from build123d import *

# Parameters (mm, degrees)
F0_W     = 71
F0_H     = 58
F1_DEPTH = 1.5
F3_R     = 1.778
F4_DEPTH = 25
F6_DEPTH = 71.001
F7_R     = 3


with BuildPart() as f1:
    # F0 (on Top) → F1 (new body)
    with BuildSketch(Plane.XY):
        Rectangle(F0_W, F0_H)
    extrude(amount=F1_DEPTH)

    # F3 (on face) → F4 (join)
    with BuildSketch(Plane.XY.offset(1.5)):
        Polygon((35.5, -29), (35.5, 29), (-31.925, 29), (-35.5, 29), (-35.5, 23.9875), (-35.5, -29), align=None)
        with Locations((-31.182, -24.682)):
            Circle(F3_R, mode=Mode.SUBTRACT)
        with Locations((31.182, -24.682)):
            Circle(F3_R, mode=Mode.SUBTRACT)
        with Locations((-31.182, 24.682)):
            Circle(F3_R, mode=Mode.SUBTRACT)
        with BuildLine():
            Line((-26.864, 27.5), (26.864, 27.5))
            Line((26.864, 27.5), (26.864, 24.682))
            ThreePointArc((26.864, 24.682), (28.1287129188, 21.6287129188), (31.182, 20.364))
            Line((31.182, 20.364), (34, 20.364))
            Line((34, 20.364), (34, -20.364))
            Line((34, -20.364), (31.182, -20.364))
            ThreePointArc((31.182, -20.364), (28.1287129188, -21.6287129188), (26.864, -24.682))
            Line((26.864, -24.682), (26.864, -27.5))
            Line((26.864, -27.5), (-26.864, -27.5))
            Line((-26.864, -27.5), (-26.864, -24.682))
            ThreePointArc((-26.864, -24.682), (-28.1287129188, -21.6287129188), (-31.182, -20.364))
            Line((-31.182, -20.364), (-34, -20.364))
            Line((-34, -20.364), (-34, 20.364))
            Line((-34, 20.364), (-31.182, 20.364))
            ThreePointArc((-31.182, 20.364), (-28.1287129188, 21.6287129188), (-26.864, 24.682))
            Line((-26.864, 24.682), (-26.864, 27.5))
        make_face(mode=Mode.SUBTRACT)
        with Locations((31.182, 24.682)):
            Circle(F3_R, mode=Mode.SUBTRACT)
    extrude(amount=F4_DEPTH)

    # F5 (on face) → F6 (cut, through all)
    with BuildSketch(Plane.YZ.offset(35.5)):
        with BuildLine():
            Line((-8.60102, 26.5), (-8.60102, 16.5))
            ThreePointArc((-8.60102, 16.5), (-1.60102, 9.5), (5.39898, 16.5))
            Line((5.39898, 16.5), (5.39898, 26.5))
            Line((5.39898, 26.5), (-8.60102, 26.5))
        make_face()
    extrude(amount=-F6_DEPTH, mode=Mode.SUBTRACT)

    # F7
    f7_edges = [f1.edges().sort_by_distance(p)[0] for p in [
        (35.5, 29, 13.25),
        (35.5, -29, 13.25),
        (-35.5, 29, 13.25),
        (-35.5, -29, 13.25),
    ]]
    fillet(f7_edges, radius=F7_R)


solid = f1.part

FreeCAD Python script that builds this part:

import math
import FreeCAD as App
import Part
import Sketcher
from FreeCAD import Vector
Q = App.Units.Quantity


def edges_at(feature, points):
    """Names of the edges that pass closest to the given points."""
    edges = feature.Shape.Edges
    near = lambda p: min(range(len(edges)), key=lambda i: edges[i].distToShape(Part.Vertex(*p))[0])
    return sorted({f"Edge{near(p) + 1}" for p in points})


def add_polygon(sketch, points):
    """Adds a closed chain of lines whose ends are joined by coincident constraints."""
    first, n = sketch.GeometryCount, len(points)
    for a, b in zip(points, points[1:] + points[:1]):
        sketch.addGeometry(Part.LineSegment(App.Vector(*a, 0), App.Vector(*b, 0)), False)
    for i in range(n):
        sketch.addConstraint(Sketcher.Constraint("Coincident", first + i, 2, first + (i + 1) % n, 1))

doc = App.newDocument("Part")
body = doc.addObject("PartDesign::Body", "Body")

# Sketch on XY plane
sketch1 = body.newObject("Sketcher::SketchObject", "Sketch")
sketch1.AttachmentSupport = (doc.getObject("XY_Plane"), [""])
sketch1.MapMode = "FlatFace"
add_polygon(sketch1, [(-36, 29), (-36, -29), (36, -29), (36, 29)])  # lines 0-3
sketch1.addConstraint([
    Sketcher.Constraint("Vertical", 0),
    Sketcher.Constraint("Horizontal", 1),
    Sketcher.Constraint("Vertical", 2),
    Sketcher.Constraint("Horizontal", 3),
    Sketcher.Constraint("Symmetric", 0, 2, 2, 2, -1, 1),
    Sketcher.Constraint("DistanceX", 1, 1, 1, 2, Q("71 mm")),
    Sketcher.Constraint("DistanceY", 0, 2, 0, 1, Q("58 mm")),
])
pad1 = body.newObject("PartDesign::Pad", "Pad")
pad1.Profile = sketch1
pad1.Length = 1.5

# Sketch on XY plane
sketch2 = body.newObject("Sketcher::SketchObject", "Sketch001")
sketch2.AttachmentSupport = (doc.getObject("XY_Plane"), [""])
sketch2.MapMode = "FlatFace"
sketch2.AttachmentOffset = App.Placement(Vector(0, 0, 1.5), App.Rotation())
add_polygon(sketch2, [(35.5, -29), (35.5, 29), (-35.5, 29), (-35.5, -29)])  # lines 0-3
sketch2.addGeometry(Part.Circle(Vector(-31.2, -24.7, 0), Vector(0, 0, 1), 1.8), False)  # 4
sketch2.addGeometry(Part.Circle(Vector(31.2, -24.7, 0), Vector(0, 0, 1), 1.8), False)  # 5
sketch2.addGeometry(Part.Circle(Vector(-31.2, 24.7, 0), Vector(0, 0, 1), 1.8), False)  # 6
sketch2.addGeometry(Part.LineSegment(Vector(-26.9, 24.7, 0), Vector(-26.9, 27.5, 0)), False)  # 7
sketch2.addGeometry(Part.LineSegment(Vector(-26.9, 27.5, 0), Vector(26.9, 27.5, 0)), False)  # 8
sketch2.addGeometry(Part.LineSegment(Vector(26.9, 27.5, 0), Vector(26.9, 24.7, 0)), False)  # 9
sketch2.addGeometry(Part.ArcOfCircle(Part.Circle(Vector(31.2, 24.7, 0), Vector(0, 0, 1), 4.3), math.radians(180), math.radians(270)), False)  # 10
sketch2.addGeometry(Part.LineSegment(Vector(31.2, 20.4, 0), Vector(34, 20.4, 0)), False)  # 11
sketch2.addGeometry(Part.LineSegment(Vector(34, 20.4, 0), Vector(34, -20.4, 0)), False)  # 12
sketch2.addGeometry(Part.LineSegment(Vector(34, -20.4, 0), Vector(31.2, -20.4, 0)), False)  # 13
sketch2.addGeometry(Part.ArcOfCircle(Part.Circle(Vector(31.2, -24.7, 0), Vector(0, 0, 1), 4.3), math.radians(90), math.radians(180)), False)  # 14
sketch2.addGeometry(Part.LineSegment(Vector(26.9, -24.7, 0), Vector(26.9, -27.5, 0)), False)  # 15
sketch2.addGeometry(Part.LineSegment(Vector(26.9, -27.5, 0), Vector(-26.9, -27.5, 0)), False)  # 16
sketch2.addGeometry(Part.LineSegment(Vector(-26.9, -27.5, 0), Vector(-26.9, -24.7, 0)), False)  # 17
sketch2.addGeometry(Part.ArcOfCircle(Part.Circle(Vector(-31.2, -24.7, 0), Vector(0, 0, 1), 4.3), math.radians(0), math.radians(90)), False)  # 18
sketch2.addGeometry(Part.LineSegment(Vector(-31.2, -20.4, 0), Vector(-34, -20.4, 0)), False)  # 19
sketch2.addGeometry(Part.LineSegment(Vector(-34, -20.4, 0), Vector(-34, 20.4, 0)), False)  # 20
sketch2.addGeometry(Part.LineSegment(Vector(-34, 20.4, 0), Vector(-31.2, 20.4, 0)), False)  # 21
sketch2.addGeometry(Part.ArcOfCircle(Part.Circle(Vector(-31.2, 24.7, 0), Vector(0, 0, 1), 4.3), math.radians(-90), math.radians(0)), False)  # 22
sketch2.addGeometry(Part.Circle(Vector(31.2, 24.7, 0), Vector(0, 0, 1), 1.8), False)  # 23
sketch2.addConstraint([
    Sketcher.Constraint("Coincident", 7, 2, 8, 1),
    Sketcher.Constraint("Coincident", 8, 2, 9, 1),
    Sketcher.Constraint("Tangent", 9, 2, 10, 1),
    Sketcher.Constraint("Tangent", 10, 2, 11, 1),
    Sketcher.Constraint("Coincident", 11, 2, 12, 1),
    Sketcher.Constraint("Coincident", 12, 2, 13, 1),
    Sketcher.Constraint("Tangent", 13, 2, 14, 1),
    Sketcher.Constraint("Tangent", 14, 2, 15, 1),
    Sketcher.Constraint("Coincident", 15, 2, 16, 1),
    Sketcher.Constraint("Coincident", 16, 2, 17, 1),
    Sketcher.Constraint("Tangent", 17, 2, 18, 1),
    Sketcher.Constraint("Tangent", 18, 2, 19, 1),
    Sketcher.Constraint("Coincident", 19, 2, 20, 1),
    Sketcher.Constraint("Coincident", 20, 2, 21, 1),
    Sketcher.Constraint("Tangent", 21, 2, 22, 1),
    Sketcher.Constraint("Tangent", 22, 2, 7, 1),
    Sketcher.Constraint("Vertical", 0),
    Sketcher.Constraint("Horizontal", 1),
    Sketcher.Constraint("Vertical", 2),
    Sketcher.Constraint("Horizontal", 3),
    Sketcher.Constraint("Vertical", 7),
    Sketcher.Constraint("Horizontal", 8),
    Sketcher.Constraint("Vertical", 9),
    Sketcher.Constraint("Horizontal", 11),
    Sketcher.Constraint("Vertical", 12),
    Sketcher.Constraint("Horizontal", 13),
    Sketcher.Constraint("Vertical", 15),
    Sketcher.Constraint("Horizontal", 16),
    Sketcher.Constraint("Vertical", 17),
    Sketcher.Constraint("Horizontal", 19),
    Sketcher.Constraint("Vertical", 20),
    Sketcher.Constraint("Horizontal", 21),
    Sketcher.Constraint("Coincident", 14, 3, 5, 3),
    Sketcher.Constraint("Coincident", 18, 3, 4, 3),
    Sketcher.Constraint("Coincident", 22, 3, 6, 3),
    Sketcher.Constraint("Coincident", 23, 3, 10, 3),
    Sketcher.Constraint("Equal", 4, 5),
    Sketcher.Constraint("Equal", 5, 6),
    Sketcher.Constraint("Equal", 10, 14),
    Sketcher.Constraint("Equal", 14, 18),
    Sketcher.Constraint("Equal", 18, 22),
    Sketcher.Constraint("Equal", 6, 23),
    Sketcher.Constraint("Symmetric", 5, 3, 6, 3, -1, 1),
    Sketcher.Constraint("Symmetric", 4, 3, 10, 3, -1, 1),
    Sketcher.Constraint("Symmetric", 0, 2, 2, 2, -1, 1),
    Sketcher.Constraint("Symmetric", 4, 3, 5, 3, -2),
    Sketcher.Constraint("Equal", 13, 19),
    Sketcher.Constraint("Equal", 21, 7),
    Sketcher.Constraint("Equal", 9, 15),
    Sketcher.Constraint("DistanceX", 1, 2, 1, 1, Q("71 mm")),
    Sketcher.Constraint("DistanceY", 0, 1, 0, 2, Q("58 mm")),
    Sketcher.Constraint("Diameter", 4, Q("3.556 mm")),
    Sketcher.Constraint("DistanceX", -1, 1, 11, 2, Q("34 mm")),
    Sketcher.Constraint("Radius", 10, Q("4.318 mm")),
    Sketcher.Constraint("DistanceY", -1, 1, 7, 2, Q("27.5 mm")),
    Sketcher.Constraint("DistanceX", 8, 1, 8, 2, Q("53.728 mm")),
])
pad2 = body.newObject("PartDesign::Pad", "Pad001")
pad2.Profile = sketch2
pad2.Length = 25

# Sketch on YZ plane
sketch3 = body.newObject("Sketcher::SketchObject", "Sketch002")
sketch3.AttachmentSupport = (doc.getObject("YZ_Plane"), [""])
sketch3.MapMode = "FlatFace"
sketch3.AttachmentOffset = App.Placement(Vector(0, 0, 35.5), App.Rotation())
sketch3.addGeometry([
    Part.LineSegment(Vector(-9, 26, 0), Vector(-9, 16, 0)),
    Part.ArcOfCircle(Part.Circle(Vector(-2, 16, 0), Vector(0, 0, 1), 7), math.radians(180), math.radians(360)),
    Part.LineSegment(Vector(5, 16, 0), Vector(5, 26, 0)),
    Part.LineSegment(Vector(5, 26, 0), Vector(-9, 26, 0)),
], False)
sketch3.addConstraint([
    Sketcher.Constraint("Tangent", 0, 2, 1, 1),
    Sketcher.Constraint("Tangent", 1, 2, 2, 1),
    Sketcher.Constraint("Coincident", 2, 2, 3, 1),
    Sketcher.Constraint("Coincident", 3, 2, 0, 1),
    Sketcher.Constraint("Vertical", 0),
    Sketcher.Constraint("Vertical", 2),
    Sketcher.Constraint("Horizontal", 3),
    Sketcher.Constraint("Radius", 1, Q("7 mm")),
    Sketcher.Constraint("DistanceY", 0, 2, 0, 1, Q("10 mm")),
    Sketcher.Constraint("DistanceY", -1, 1, 1, 3, Q("16.5 mm")),
    Sketcher.Constraint("DistanceX", 1, 3, -1, 1, Q("1.60102 mm")),
])
pocket1 = body.newObject("PartDesign::Pocket", "Pocket")
pocket1.Profile = sketch3
pocket1.Type = "ThroughAll"
doc.recompute()

fillet = body.newObject("PartDesign::Fillet", "Fillet")
fillet.Base = (pocket1, edges_at(pocket1, [
    (35.5, 29, 13.25),
    (35.5, -29, 13.25),
    (-35.5, 29, 13.25),
    (-35.5, -29, 13.25),
]))
fillet.Radius = 3

doc.recompute()
